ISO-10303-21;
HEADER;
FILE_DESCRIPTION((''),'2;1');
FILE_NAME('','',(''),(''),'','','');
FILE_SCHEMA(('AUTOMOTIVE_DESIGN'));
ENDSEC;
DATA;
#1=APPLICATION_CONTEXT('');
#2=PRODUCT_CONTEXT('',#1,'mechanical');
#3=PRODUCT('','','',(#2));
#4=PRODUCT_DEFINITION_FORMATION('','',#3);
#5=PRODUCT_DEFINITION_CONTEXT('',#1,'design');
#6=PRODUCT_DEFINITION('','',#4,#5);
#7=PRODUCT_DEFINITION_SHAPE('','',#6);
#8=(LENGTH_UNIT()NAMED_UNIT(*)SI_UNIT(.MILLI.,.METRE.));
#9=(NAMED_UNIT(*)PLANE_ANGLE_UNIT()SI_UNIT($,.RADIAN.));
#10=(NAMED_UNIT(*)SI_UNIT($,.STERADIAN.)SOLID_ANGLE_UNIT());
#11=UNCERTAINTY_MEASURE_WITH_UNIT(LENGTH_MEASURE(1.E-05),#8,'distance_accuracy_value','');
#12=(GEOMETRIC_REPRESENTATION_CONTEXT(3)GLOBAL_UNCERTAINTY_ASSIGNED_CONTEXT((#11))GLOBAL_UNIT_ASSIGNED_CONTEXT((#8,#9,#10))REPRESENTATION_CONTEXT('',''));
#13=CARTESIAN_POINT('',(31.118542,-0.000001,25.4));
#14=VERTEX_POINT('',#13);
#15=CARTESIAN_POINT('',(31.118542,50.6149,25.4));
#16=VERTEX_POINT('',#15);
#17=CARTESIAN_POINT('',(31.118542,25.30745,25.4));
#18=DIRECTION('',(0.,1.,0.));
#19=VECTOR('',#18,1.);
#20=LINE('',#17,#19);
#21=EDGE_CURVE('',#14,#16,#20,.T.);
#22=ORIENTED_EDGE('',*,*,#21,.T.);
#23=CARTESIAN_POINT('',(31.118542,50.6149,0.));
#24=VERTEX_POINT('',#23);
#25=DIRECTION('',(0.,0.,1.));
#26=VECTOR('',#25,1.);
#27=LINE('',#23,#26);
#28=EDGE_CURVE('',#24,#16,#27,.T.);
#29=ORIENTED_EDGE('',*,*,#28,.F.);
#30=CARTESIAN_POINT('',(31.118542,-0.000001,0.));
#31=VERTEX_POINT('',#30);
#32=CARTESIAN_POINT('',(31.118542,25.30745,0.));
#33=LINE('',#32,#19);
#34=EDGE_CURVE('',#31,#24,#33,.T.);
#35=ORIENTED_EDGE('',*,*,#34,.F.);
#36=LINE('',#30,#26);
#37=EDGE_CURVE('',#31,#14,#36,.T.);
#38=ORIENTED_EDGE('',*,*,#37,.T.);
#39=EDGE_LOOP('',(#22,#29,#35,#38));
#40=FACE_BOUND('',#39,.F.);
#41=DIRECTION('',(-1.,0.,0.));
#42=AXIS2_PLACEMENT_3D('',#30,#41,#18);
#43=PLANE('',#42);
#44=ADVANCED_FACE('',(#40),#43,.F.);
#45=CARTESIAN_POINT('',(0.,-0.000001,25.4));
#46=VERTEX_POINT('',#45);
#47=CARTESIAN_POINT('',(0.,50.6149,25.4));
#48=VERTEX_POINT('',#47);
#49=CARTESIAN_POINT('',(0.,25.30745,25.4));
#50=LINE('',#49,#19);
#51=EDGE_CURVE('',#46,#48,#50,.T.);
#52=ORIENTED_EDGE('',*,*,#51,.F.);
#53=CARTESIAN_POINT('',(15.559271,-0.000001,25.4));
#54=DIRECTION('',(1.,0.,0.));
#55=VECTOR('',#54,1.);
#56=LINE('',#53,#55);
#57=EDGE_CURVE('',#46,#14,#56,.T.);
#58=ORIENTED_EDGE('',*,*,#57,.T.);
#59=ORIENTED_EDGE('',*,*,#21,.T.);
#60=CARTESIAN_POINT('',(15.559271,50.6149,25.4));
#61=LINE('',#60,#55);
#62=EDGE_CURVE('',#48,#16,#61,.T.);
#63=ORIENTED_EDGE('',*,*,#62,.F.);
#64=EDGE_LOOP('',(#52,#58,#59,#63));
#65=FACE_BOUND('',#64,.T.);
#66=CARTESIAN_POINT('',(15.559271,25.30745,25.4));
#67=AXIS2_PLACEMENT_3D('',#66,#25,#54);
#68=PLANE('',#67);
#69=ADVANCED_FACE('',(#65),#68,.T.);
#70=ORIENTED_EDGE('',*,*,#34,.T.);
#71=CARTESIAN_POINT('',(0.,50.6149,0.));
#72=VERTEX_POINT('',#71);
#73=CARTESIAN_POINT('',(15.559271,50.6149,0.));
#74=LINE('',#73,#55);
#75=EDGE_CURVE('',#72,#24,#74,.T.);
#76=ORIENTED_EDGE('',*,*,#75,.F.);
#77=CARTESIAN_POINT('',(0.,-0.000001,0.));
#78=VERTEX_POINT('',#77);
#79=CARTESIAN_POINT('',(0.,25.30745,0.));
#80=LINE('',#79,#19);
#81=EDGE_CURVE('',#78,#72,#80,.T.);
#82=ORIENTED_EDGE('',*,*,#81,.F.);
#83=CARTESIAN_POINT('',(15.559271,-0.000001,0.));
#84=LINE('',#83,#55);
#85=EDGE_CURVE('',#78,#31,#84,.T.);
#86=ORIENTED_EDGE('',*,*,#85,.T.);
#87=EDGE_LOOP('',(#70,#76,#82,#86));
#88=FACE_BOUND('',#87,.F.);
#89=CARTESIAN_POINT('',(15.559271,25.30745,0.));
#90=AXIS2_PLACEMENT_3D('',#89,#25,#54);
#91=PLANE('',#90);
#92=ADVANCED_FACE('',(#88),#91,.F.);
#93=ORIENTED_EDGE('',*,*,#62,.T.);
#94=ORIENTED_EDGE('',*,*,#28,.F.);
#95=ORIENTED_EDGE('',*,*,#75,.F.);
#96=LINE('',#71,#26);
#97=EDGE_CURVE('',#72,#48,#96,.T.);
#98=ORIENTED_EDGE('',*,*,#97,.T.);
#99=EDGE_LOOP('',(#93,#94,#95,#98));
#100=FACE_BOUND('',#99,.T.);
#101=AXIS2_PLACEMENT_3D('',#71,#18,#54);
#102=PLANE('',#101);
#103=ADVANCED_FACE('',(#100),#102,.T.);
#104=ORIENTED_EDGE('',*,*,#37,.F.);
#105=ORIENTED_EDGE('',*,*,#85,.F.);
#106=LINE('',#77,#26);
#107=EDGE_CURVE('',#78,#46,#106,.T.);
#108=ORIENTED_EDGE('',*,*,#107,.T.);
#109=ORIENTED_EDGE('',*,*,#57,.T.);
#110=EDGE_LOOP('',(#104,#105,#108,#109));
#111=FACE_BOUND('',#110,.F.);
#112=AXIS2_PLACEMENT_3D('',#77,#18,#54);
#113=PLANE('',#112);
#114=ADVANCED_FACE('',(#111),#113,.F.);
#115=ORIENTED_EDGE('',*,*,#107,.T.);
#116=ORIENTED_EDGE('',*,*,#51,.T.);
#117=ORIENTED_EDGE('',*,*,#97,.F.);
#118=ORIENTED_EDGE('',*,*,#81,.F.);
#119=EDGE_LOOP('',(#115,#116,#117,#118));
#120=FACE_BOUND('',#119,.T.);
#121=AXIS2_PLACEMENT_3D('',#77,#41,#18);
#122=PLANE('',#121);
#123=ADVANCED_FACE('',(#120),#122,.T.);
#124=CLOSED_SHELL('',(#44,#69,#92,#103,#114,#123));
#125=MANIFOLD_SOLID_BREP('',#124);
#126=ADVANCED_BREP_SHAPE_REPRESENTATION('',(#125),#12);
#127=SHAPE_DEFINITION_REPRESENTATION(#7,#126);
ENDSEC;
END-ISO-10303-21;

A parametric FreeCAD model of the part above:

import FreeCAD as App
import Part
import Sketcher
from FreeCAD import Vector
Q = App.Units.Quantity


def add_polygon(sketch, points):
    """Adds a closed chain of lines whose ends are joined by coincident constraints."""
    first, n = sketch.GeometryCount, len(points)
    for a, b in zip(points, points[1:] + points[:1]):
        sketch.addGeometry(Part.LineSegment(App.Vector(*a, 0), App.Vector(*b, 0)), False)
    for i in range(n):
        sketch.addConstraint(Sketcher.Constraint("Coincident", first + i, 2, first + (i + 1) % n, 1))

doc = App.newDocument("Part")
body = doc.addObject("PartDesign::Body", "Body")

# Sketch on XY plane
sketch1 = body.newObject("Sketcher::SketchObject", "Sketch")
sketch1.AttachmentSupport = (doc.getObject("XY_Plane"), [""])
sketch1.MapMode = "FlatFace"
add_polygon(sketch1, [(0, 50.6149), (0, 0), (31.118542, 0), (31.118542, 50.6149)])  # lines 0-3
sketch1.addConstraint(Sketcher.Constraint("Vertical", 0))
sketch1.addConstraint(Sketcher.Constraint("Horizontal", 1))
sketch1.addConstraint(Sketcher.Constraint("Vertical", 2))
sketch1.addConstraint(Sketcher.Constraint("Horizontal", 3))
sketch1.addConstraint(Sketcher.Constraint("Coincident", 0, 2, -1, 1))
sketch1.addConstraint(Sketcher.Constraint("DistanceY", 0, 2, 0, 1, 50.614901))
sketch1.addConstraint(Sketcher.Constraint("DistanceX", 1, 1, 1, 2, 31.118542))
pad1 = body.newObject("PartDesign::Pad", "Pad")
pad1.Profile = sketch1
pad1.Length = Q("1 in")

doc.recompute()
